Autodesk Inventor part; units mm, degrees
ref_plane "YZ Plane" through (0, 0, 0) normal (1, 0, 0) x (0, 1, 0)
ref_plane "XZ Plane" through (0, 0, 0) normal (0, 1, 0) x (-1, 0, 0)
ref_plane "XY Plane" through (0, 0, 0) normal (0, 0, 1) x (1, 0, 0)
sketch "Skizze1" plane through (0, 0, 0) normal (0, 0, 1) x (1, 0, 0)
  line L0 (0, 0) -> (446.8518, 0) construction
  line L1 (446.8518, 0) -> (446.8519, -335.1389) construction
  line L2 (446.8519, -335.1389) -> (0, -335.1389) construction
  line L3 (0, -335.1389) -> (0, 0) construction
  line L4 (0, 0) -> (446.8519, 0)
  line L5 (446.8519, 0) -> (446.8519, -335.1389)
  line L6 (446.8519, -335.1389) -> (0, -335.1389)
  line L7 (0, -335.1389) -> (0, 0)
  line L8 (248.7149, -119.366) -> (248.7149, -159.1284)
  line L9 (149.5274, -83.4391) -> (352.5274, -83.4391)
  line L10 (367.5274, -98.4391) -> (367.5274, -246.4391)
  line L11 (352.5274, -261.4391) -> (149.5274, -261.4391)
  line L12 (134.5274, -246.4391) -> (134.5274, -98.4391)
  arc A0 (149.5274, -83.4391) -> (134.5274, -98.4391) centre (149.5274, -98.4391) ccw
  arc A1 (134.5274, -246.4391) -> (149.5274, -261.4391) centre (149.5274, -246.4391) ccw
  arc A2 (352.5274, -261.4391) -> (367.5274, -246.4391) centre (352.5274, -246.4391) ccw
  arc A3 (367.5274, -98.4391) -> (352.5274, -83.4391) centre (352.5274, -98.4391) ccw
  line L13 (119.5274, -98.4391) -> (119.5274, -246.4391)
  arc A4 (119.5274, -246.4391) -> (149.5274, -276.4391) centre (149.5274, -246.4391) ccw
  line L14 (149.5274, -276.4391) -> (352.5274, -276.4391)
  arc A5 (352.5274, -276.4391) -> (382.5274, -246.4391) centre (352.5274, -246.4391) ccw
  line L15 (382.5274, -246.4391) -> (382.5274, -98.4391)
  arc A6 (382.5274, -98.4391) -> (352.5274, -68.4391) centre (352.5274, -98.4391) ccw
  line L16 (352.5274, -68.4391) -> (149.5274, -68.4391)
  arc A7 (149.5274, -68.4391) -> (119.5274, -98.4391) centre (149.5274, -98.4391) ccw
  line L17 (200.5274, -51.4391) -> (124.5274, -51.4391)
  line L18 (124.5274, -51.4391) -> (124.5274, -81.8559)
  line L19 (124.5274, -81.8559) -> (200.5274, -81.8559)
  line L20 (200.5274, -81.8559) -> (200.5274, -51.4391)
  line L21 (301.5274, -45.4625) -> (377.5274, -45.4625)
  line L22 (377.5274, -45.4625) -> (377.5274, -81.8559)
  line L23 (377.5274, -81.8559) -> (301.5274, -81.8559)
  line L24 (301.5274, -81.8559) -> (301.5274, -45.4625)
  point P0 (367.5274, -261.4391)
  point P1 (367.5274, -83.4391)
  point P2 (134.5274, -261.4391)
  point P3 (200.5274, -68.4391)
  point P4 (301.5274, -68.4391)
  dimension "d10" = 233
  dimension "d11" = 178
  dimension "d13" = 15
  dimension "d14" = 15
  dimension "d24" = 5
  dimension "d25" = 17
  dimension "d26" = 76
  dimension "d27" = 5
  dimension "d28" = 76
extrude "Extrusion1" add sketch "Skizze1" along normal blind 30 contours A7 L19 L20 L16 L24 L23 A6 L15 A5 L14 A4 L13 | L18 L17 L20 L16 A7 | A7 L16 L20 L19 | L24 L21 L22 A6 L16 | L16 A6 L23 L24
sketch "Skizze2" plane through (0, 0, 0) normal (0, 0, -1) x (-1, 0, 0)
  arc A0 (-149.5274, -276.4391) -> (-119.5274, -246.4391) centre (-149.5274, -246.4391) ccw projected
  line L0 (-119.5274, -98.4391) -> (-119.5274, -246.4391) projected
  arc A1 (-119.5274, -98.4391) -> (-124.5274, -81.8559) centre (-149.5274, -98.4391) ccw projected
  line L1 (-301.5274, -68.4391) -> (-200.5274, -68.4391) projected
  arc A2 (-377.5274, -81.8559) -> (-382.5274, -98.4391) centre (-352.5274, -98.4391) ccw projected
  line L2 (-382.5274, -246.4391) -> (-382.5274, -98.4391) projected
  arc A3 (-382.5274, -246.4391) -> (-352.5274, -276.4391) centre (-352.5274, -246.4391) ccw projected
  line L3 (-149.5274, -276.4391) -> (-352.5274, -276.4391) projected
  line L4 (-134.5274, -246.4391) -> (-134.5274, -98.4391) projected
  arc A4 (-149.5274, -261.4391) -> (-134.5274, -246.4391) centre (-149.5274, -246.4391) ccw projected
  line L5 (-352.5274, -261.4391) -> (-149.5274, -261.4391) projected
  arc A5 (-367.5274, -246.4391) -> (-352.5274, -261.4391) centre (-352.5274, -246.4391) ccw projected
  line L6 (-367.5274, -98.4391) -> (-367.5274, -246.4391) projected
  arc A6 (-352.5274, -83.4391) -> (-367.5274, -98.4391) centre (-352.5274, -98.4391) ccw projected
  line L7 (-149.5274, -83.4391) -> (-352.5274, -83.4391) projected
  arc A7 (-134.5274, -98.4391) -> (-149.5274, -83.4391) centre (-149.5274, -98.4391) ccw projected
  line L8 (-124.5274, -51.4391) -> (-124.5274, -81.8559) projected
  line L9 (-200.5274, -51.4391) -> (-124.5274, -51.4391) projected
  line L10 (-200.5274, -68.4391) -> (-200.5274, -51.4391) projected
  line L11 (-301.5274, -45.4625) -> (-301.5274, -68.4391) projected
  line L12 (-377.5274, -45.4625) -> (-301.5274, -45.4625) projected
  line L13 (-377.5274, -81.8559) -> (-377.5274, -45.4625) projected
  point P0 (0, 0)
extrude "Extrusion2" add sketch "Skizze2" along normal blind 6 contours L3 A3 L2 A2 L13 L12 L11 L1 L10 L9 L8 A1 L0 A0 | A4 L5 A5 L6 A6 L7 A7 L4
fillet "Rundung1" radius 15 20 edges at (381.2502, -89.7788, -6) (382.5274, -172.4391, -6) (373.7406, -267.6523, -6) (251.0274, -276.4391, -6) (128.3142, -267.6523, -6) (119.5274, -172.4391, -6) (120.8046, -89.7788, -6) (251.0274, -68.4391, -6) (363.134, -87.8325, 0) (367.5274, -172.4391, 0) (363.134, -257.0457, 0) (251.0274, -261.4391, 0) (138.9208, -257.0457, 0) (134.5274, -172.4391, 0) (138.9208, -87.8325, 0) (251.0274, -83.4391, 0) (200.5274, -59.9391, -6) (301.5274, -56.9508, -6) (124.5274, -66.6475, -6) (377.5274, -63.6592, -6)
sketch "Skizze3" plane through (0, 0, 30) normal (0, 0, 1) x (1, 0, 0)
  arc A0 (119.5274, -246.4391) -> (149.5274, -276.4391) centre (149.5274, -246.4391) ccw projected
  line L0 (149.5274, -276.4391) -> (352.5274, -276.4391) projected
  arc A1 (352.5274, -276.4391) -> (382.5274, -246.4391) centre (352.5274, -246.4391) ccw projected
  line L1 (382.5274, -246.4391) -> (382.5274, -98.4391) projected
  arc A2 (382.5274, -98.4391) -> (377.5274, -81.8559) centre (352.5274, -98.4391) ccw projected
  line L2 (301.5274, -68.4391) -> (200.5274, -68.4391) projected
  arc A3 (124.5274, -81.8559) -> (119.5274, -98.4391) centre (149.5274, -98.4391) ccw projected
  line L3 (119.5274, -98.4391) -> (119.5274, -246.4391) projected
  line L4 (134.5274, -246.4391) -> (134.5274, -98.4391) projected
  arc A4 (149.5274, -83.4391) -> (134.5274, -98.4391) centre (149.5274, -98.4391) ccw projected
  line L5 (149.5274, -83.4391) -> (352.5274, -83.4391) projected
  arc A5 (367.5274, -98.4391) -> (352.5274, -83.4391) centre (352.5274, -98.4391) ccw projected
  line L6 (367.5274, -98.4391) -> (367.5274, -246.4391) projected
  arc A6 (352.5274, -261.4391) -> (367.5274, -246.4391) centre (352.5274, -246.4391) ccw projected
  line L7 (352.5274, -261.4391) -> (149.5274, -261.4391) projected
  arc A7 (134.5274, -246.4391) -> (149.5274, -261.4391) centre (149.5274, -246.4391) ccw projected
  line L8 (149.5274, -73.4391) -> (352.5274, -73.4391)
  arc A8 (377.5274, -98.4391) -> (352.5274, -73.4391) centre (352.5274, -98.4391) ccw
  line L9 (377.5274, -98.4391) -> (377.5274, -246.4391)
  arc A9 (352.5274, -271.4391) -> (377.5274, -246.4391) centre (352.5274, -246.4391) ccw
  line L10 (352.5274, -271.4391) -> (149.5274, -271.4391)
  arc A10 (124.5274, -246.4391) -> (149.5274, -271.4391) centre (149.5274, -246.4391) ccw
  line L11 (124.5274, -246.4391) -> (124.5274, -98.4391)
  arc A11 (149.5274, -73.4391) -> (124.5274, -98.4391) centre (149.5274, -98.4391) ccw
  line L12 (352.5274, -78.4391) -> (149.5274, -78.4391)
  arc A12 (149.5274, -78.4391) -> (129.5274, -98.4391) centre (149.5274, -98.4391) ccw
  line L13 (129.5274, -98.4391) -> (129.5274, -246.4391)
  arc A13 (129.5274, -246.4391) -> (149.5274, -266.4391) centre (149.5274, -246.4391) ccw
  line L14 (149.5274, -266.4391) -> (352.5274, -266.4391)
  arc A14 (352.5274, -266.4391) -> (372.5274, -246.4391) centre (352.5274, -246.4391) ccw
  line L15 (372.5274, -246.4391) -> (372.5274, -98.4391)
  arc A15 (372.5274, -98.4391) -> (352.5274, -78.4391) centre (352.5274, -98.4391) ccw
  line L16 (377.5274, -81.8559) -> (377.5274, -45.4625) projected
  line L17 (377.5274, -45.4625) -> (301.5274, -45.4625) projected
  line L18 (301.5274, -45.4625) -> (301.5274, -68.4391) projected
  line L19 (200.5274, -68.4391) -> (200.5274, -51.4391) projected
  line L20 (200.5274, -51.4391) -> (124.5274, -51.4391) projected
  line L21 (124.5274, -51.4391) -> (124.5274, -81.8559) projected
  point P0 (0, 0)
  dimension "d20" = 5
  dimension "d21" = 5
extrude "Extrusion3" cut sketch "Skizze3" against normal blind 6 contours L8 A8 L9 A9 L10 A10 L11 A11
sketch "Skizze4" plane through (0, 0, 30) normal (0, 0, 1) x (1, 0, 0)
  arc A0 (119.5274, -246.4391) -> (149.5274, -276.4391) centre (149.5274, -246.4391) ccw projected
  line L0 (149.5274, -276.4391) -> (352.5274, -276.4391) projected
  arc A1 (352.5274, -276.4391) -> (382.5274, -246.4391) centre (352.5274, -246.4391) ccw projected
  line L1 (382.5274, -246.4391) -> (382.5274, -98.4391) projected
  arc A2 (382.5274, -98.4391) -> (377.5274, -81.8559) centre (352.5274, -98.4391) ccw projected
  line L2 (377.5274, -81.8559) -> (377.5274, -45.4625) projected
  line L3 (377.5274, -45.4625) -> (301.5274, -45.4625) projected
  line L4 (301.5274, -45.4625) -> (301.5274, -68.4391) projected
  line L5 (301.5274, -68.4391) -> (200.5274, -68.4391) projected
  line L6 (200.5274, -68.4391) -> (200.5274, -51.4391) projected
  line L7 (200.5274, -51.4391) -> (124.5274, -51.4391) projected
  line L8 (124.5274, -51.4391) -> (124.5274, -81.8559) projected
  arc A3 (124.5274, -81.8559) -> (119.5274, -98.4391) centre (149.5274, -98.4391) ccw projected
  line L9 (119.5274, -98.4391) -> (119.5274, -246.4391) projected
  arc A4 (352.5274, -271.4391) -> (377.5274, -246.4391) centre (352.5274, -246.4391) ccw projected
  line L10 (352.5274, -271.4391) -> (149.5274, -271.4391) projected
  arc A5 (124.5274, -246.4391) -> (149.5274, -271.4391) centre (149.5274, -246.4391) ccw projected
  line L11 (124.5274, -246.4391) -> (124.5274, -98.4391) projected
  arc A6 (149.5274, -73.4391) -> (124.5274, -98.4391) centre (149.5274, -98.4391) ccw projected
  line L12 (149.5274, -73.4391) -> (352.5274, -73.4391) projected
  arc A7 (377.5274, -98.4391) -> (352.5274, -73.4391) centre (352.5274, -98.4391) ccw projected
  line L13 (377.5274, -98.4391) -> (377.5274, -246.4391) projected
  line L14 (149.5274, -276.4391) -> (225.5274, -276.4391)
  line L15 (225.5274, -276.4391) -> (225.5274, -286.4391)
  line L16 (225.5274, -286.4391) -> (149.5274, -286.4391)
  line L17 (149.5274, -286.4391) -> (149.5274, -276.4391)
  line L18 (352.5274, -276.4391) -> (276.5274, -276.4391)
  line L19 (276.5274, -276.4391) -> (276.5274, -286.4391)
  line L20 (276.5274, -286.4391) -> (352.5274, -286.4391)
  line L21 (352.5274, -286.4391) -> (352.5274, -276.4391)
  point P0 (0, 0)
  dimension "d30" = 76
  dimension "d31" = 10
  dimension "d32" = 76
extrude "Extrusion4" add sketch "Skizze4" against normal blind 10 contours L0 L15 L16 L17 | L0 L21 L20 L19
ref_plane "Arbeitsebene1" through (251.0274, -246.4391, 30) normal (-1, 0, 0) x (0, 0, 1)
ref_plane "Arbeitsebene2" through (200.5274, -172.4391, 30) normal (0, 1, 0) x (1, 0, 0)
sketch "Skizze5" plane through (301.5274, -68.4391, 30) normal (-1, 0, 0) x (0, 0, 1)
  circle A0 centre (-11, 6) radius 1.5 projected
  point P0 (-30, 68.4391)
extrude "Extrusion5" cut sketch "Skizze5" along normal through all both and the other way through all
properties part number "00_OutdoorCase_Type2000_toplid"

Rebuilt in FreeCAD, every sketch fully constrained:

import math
import FreeCAD as App
import Part
import Sketcher
from FreeCAD import Vector
Q = App.Units.Quantity


def edges_at(feature, points):
    """Names of the edges that pass closest to the given points."""
    edges = feature.Shape.Edges
    near = lambda p: min(range(len(edges)), key=lambda i: edges[i].distToShape(Part.Vertex(*p))[0])
    return sorted({f"Edge{near(p) + 1}" for p in points})

doc = App.newDocument("Part")
params = doc.addObject("Spreadsheet::Sheet", "Params")
for row, (alias, value) in enumerate([
    ("sketch1_radius", "15 mm"),
    ("sketch1_width", "76 mm"),
    ("sketch1_height", "17 mm"),
    ("sketch1_radius2", "30 mm"),
    ("pad1_length", "30 mm"),
    ("sketch2_radius", "30 mm"),
    ("sketch2_width", "203 mm"),
    ("sketch2_width2", "76 mm"),
    ("sketch2_width3", "101 mm"),
    ("sketch2_height", "148 mm"),
    ("pad2_length", "6 mm"),
    ("fillet_radius", "15 mm"),
    ("sketch3_radius", "25 mm"),
    ("sketch3_radius2", "20 mm"),
    ("sketch3_width", "203 mm"),
    ("sketch3_height", "148 mm"),
    ("pocket1_length", "6 mm"),
    ("sketch4_width", "76 mm"),
    ("sketch4_height", "10 mm"),
    ("pad3_length", "10 mm"),
    ("sketch5_diameter", "3 mm"),
], start=1):
    params.set(f"A{row}", alias)
    params.set(f"B{row}", "=" + value)
    params.setAlias(f"B{row}", alias)

body = doc.addObject("PartDesign::Body", "Body")

sketch1 = body.newObject("Sketcher::SketchObject", "Sketch")
sketch1.AttachmentSupport = (doc.getObject("XY_Plane"), [""])
sketch1.MapMode = "FlatFace"
sketch1.addGeometry([
    Part.ArcOfCircle(Part.Circle(Vector(150, -98, 0), Vector(0, 0, 1), 30), math.radians(146), math.radians(180)),
    Part.LineSegment(Vector(120, -98, 0), Vector(120, -246, 0)),
    Part.ArcOfCircle(Part.Circle(Vector(150, -246, 0), Vector(0, 0, 1), 30), math.radians(180), math.radians(270)),
    Part.LineSegment(Vector(150, -276, 0), Vector(353, -276, 0)),
    Part.ArcOfCircle(Part.Circle(Vector(353, -246, 0), Vector(0, 0, 1), 30), math.radians(-90), math.radians(0)),
    Part.LineSegment(Vector(383, -246, 0), Vector(383, -98, 0)),
    Part.ArcOfCircle(Part.Circle(Vector(353, -98, 0), Vector(0, 0, 1), 30), math.radians(0), math.radians(34)),
    Part.LineSegment(Vector(378, -82, 0), Vector(378, -45, 0)),
    Part.LineSegment(Vector(378, -45, 0), Vector(302, -45, 0)),
    Part.LineSegment(Vector(302, -45, 0), Vector(302, -68, 0)),
    Part.LineSegment(Vector(302, -68, 0), Vector(201, -68, 0)),
    Part.LineSegment(Vector(201, -68, 0), Vector(201, -51, 0)),
    Part.LineSegment(Vector(201, -51, 0), Vector(125, -51, 0)),
    Part.LineSegment(Vector(125, -51, 0), Vector(125, -82, 0)),
    Part.ArcOfCircle(Part.Circle(Vector(150, -98, 0), Vector(0, 0, 1), 15), math.radians(90), math.radians(180)),
    Part.LineSegment(Vector(150, -83, 0), Vector(353, -83, 0)),
    Part.ArcOfCircle(Part.Circle(Vector(353, -98, 0), Vector(0, 0, 1), 15), math.radians(0), math.radians(90)),
    Part.LineSegment(Vector(368, -98, 0), Vector(368, -246, 0)),
    Part.ArcOfCircle(Part.Circle(Vector(353, -246, 0), Vector(0, 0, 1), 15), math.radians(-90), math.radians(0)),
    Part.LineSegment(Vector(353, -261, 0), Vector(150, -261, 0)),
    Part.ArcOfCircle(Part.Circle(Vector(150, -246, 0), Vector(0, 0, 1), 15), math.radians(180), math.radians(270)),
    Part.LineSegment(Vector(135, -246, 0), Vector(135, -98, 0)),
], False)
sketch1.addConstraint([
    Sketcher.Constraint("Tangent", 0, 2, 1, 1),
    Sketcher.Constraint("Tangent", 1, 2, 2, 1),
    Sketcher.Constraint("Tangent", 2, 2, 3, 1),
    Sketcher.Constraint("Tangent", 3, 2, 4, 1),
    Sketcher.Constraint("Tangent", 4, 2, 5, 1),
    Sketcher.Constraint("Tangent", 5, 2, 6, 1),
    Sketcher.Constraint("Coincident", 6, 2, 7, 1),
    Sketcher.Constraint("Coincident", 7, 2, 8, 1),
    Sketcher.Constraint("Coincident", 8, 2, 9, 1),
    Sketcher.Constraint("Coincident", 9, 2, 10, 1),
    Sketcher.Constraint("Coincident", 10, 2, 11, 1),
    Sketcher.Constraint("Coincident", 11, 2, 12, 1),
    Sketcher.Constraint("Coincident", 12, 2, 13, 1),
    Sketcher.Constraint("Coincident", 13, 2, 0, 1),
    Sketcher.Constraint("Tangent", 14, 1, 15, 1),
    Sketcher.Constraint("Tangent", 15, 2, 16, 2),
    Sketcher.Constraint("Tangent", 16, 1, 17, 1),
    Sketcher.Constraint("Tangent", 17, 2, 18, 2),
    Sketcher.Constraint("Tangent", 18, 1, 19, 1),
    Sketcher.Constraint("Tangent", 19, 2, 20, 2),
    Sketcher.Constraint("Tangent", 20, 1, 21, 1),
    Sketcher.Constraint("Tangent", 21, 2, 14, 2),
    Sketcher.Constraint("Vertical", 1),
    Sketcher.Constraint("Horizontal", 3),
    Sketcher.Constraint("Vertical", 5),
    Sketcher.Constraint("Vertical", 7),
    Sketcher.Constraint("Horizontal", 8),
    Sketcher.Constraint("Vertical", 9),
    Sketcher.Constraint("Horizontal", 10),
    Sketcher.Constraint("Vertical", 11),
    Sketcher.Constraint("Horizontal", 12),
    Sketcher.Constraint("Vertical", 13),
    Sketcher.Constraint("Horizontal", 15),
    Sketcher.Constraint("Vertical", 17),
    Sketcher.Constraint("Horizontal", 19),
    Sketcher.Constraint("Vertical", 21),
    Sketcher.Constraint("Coincident", 14, 3, 0, 3),
    Sketcher.Constraint("Coincident", 16, 3, 6, 3),
    Sketcher.Constraint("Coincident", 18, 3, 4, 3),
    Sketcher.Constraint("Coincident", 20, 3, 2, 3),
    Sketcher.Constraint("Equal", 0, 2),
    Sketcher.Constraint("Equal", 2, 4),
    Sketcher.Constraint("Equal", 4, 6),
    Sketcher.Constraint("Horizontal", 6, 2, 13, 2),
    Sketcher.Constraint("Equal", 8, 12),
    Sketcher.Constraint("Radius", 14, Q("15 mm")),
    Sketcher.Constraint("DistanceX", 8, 2, 8, 1, Q("76 mm")),
    Sketcher.Constraint("DistanceY", 11, 1, 11, 2, Q("17 mm")),
    Sketcher.Constraint("Radius", 0, Q("30 mm")),
    Sketcher.Constraint("DistanceX", 0, 2, 6, 3, Q("233 mm")),
    Sketcher.Constraint("DistanceY", 2, 2, 0, 3, Q("178 mm")),
    Sketcher.Constraint("DistanceX", 6, 2, 5, 2, Q("5 mm")),
    Sketcher.Constraint("DistanceY", 6, 3, 9, 2, Q("30 mm")),
    Sketcher.Constraint("DistanceY", 7, 1, 7, 2, Q("36.3934 mm")),
    Sketcher.Constraint("DistanceY", 0, 3, -1, 1, Q("98.439 mm")),
    Sketcher.Constraint("DistanceX", -1, 1, 0, 3, Q("149.5274 mm")),
])
sketch1.setExpression("Constraints[45]", "Params.sketch1_radius")
sketch1.setExpression("Constraints[46]", "Params.sketch1_width")
sketch1.setExpression("Constraints[47]", "Params.sketch1_height")
sketch1.setExpression("Constraints[48]", "Params.sketch1_radius2")
pad1 = body.newObject("PartDesign::Pad", "Pad")
pad1.Profile = sketch1
pad1.setExpression("Length", "Params.pad1_length")

sketch2 = body.newObject("Sketcher::SketchObject", "Sketch001")
sketch2.AttachmentSupport = (doc.getObject("XY_Plane"), [""])
sketch2.MapMode = "FlatFace"
sketch2.addGeometry([
    Part.LineSegment(Vector(353, -276, 0), Vector(150, -276, 0)),
    Part.ArcOfCircle(Part.Circle(Vector(150, -246, 0), Vector(0, 0, 1), 30), math.radians(180), math.radians(270)),
    Part.LineSegment(Vector(120, -246, 0), Vector(120, -98, 0)),
    Part.ArcOfCircle(Part.Circle(Vector(150, -98, 0), Vector(0, 0, 1), 30), math.radians(146), math.radians(180)),
    Part.LineSegment(Vector(125, -82, 0), Vector(125, -51, 0)),
    Part.LineSegment(Vector(125, -51, 0), Vector(201, -51, 0)),
    Part.LineSegment(Vector(201, -51, 0), Vector(201, -68, 0)),
    Part.LineSegment(Vector(201, -68, 0), Vector(302, -68, 0)),
    Part.LineSegment(Vector(302, -68, 0), Vector(302, -45, 0)),
    Part.LineSegment(Vector(302, -45, 0), Vector(378, -45, 0)),
    Part.LineSegment(Vector(378, -45, 0), Vector(378, -82, 0)),
    Part.ArcOfCircle(Part.Circle(Vector(353, -98, 0), Vector(0, 0, 1), 30), math.radians(0), math.radians(34)),
    Part.LineSegment(Vector(383, -98, 0), Vector(383, -246, 0)),
    Part.ArcOfCircle(Part.Circle(Vector(353, -246, 0), Vector(0, 0, 1), 30), math.radians(-90), math.radians(0)),
], False)
sketch2.addConstraint([
    Sketcher.Constraint("Tangent", 0, 2, 1, 2),
    Sketcher.Constraint("Tangent", 1, 1, 2, 1),
    Sketcher.Constraint("Tangent", 2, 2, 3, 2),
    Sketcher.Constraint("Coincident", 3, 1, 4, 1),
    Sketcher.Constraint("Coincident", 4, 2, 5, 1),
    Sketcher.Constraint("Coincident", 5, 2, 6, 1),
    Sketcher.Constraint("Coincident", 6, 2, 7, 1),
    Sketcher.Constraint("Coincident", 7, 2, 8, 1),
    Sketcher.Constraint("Coincident", 8, 2, 9, 1),
    Sketcher.Constraint("Coincident", 9, 2, 10, 1),
    Sketcher.Constraint("Coincident", 10, 2, 11, 2),
    Sketcher.Constraint("Tangent", 11, 1, 12, 1),
    Sketcher.Constraint("Tangent", 12, 2, 13, 2),
    Sketcher.Constraint("Tangent", 13, 1, 0, 1),
    Sketcher.Constraint("Horizontal", 0),
    Sketcher.Constraint("Vertical", 2),
    Sketcher.Constraint("Vertical", 4),
    Sketcher.Constraint("Horizontal", 5),
    Sketcher.Constraint("Vertical", 6),
    Sketcher.Constraint("Horizontal", 7),
    Sketcher.Constraint("Vertical", 8),
    Sketcher.Constraint("Horizontal", 9),
    Sketcher.Constraint("Vertical", 10),
    Sketcher.Constraint("Vertical", 12),
    Sketcher.Constraint("Equal", 1, 3),
    Sketcher.Constraint("Equal", 3, 11),
    Sketcher.Constraint("Equal", 11, 13),
    Sketcher.Constraint("Horizontal", 3, 3, 11, 3),
    Sketcher.Constraint("Horizontal", 3, 1, 10, 2),
    Sketcher.Constraint("Equal", 5, 9),
    Sketcher.Constraint("Radius", 1, Q("30 mm")),
    Sketcher.Constraint("DistanceX", 0, 2, 0, 1, Q("203 mm")),
    Sketcher.Constraint("DistanceX", 5, 1, 5, 2, Q("76 mm")),
    Sketcher.Constraint("DistanceX", 7, 1, 7, 2, Q("101 mm")),
    Sketcher.Constraint("DistanceY", 2, 1, 2, 2, Q("148 mm")),
    Sketcher.Constraint("DistanceY", 6, 2, 6, 1, Q("17 mm")),
    Sketcher.Constraint("DistanceY", 2, 2, 4, 2, Q("47 mm")),
    Sketcher.Constraint("DistanceY", 8, 1, 8, 2, Q("22.9766 mm")),
    Sketcher.Constraint("DistanceY", 1, 3, -1, 1, Q("246.439 mm")),
    Sketcher.Constraint("DistanceX", -1, 1, 1, 3, Q("149.5274 mm")),
])
sketch2.setExpression("Constraints[30]", "Params.sketch2_radius")
sketch2.setExpression("Constraints[31]", "Params.sketch2_width")
sketch2.setExpression("Constraints[32]", "Params.sketch2_width2")
sketch2.setExpression("Constraints[33]", "Params.sketch2_width3")
sketch2.setExpression("Constraints[34]", "Params.sketch2_height")
pad2 = body.newObject("PartDesign::Pad", "Pad001")
pad2.Profile = sketch2
pad2.setExpression("Length", "Params.pad2_length")
pad2.Reversed = True
doc.recompute()

fillet = body.newObject("PartDesign::Fillet", "Fillet")
fillet.Base = (pad2, edges_at(pad2, [
    (381.25, -89.779, -6),
    (382.527, -172.439, -6),
    (373.741, -267.652, -6),
    (251.027, -276.439, -6),
    (128.314, -267.652, -6),
    (119.527, -172.439, -6),
    (120.805, -89.779, -6),
    (251.027, -68.439, -6),
    (363.134, -87.832, 0),
    (367.527, -172.439, 0),
    (363.134, -257.046, 0),
    (251.027, -261.439, 0),
    (138.921, -257.046, 0),
    (134.527, -172.439, 0),
    (138.921, -87.832, 0),
    (251.027, -83.439, 0),
    (200.527, -59.939, -6),
    (301.527, -56.951, -6),
    (124.527, -66.647, -6),
    (377.527, -63.659, -6),
]))
fillet.setExpression("Radius", "Params.fillet_radius")

sketch3 = body.newObject("Sketcher::SketchObject", "Sketch002")
sketch3.AttachmentSupport = (doc.getObject("XY_Plane"), [""])
sketch3.MapMode = "FlatFace"
sketch3.AttachmentOffset = App.Placement(Vector(0, 0, 30), App.Rotation())
sketch3.addGeometry([
    Part.LineSegment(Vector(353, -73, 0), Vector(150, -73, 0)),
    Part.ArcOfCircle(Part.Circle(Vector(150, -98, 0), Vector(0, 0, 1), 25), math.radians(90), math.radians(180)),
    Part.LineSegment(Vector(125, -98, 0), Vector(125, -246, 0)),
    Part.ArcOfCircle(Part.Circle(Vector(150, -246, 0), Vector(0, 0, 1), 25), math.radians(180), math.radians(270)),
    Part.LineSegment(Vector(150, -271, 0), Vector(353, -271, 0)),
    Part.ArcOfCircle(Part.Circle(Vector(353, -246, 0), Vector(0, 0, 1), 25), math.radians(-90), math.radians(0)),
    Part.LineSegment(Vector(378, -246, 0), Vector(378, -98, 0)),
    Part.ArcOfCircle(Part.Circle(Vector(353, -98, 0), Vector(0, 0, 1), 25), math.radians(0), math.radians(90)),
    Part.LineSegment(Vector(150, -78, 0), Vector(353, -78, 0)),
    Part.ArcOfCircle(Part.Circle(Vector(353, -98, 0), Vector(0, 0, 1), 20), math.radians(0), math.radians(90)),
    Part.LineSegment(Vector(373, -98, 0), Vector(373, -246, 0)),
    Part.ArcOfCircle(Part.Circle(Vector(353, -246, 0), Vector(0, 0, 1), 20), math.radians(-90), math.radians(0)),
    Part.LineSegment(Vector(353, -266, 0), Vector(150, -266, 0)),
    Part.ArcOfCircle(Part.Circle(Vector(150, -246, 0), Vector(0, 0, 1), 20), math.radians(180), math.radians(270)),
    Part.LineSegment(Vector(130, -246, 0), Vector(130, -98, 0)),
    Part.ArcOfCircle(Part.Circle(Vector(150, -98, 0), Vector(0, 0, 1), 20), math.radians(90), math.radians(180)),
], False)
sketch3.addConstraint([
    Sketcher.Constraint("Tangent", 0, 2, 1, 1),
    Sketcher.Constraint("Tangent", 1, 2, 2, 1),
    Sketcher.Constraint("Tangent", 2, 2, 3, 1),
    Sketcher.Constraint("Tangent", 3, 2, 4, 1),
    Sketcher.Constraint("Tangent", 4, 2, 5, 1),
    Sketcher.Constraint("Tangent", 5, 2, 6, 1),
    Sketcher.Constraint("Tangent", 6, 2, 7, 1),
    Sketcher.Constraint("Tangent", 7, 2, 0, 1),
    Sketcher.Constraint("Tangent", 8, 2, 9, 2),
    Sketcher.Constraint("Tangent", 9, 1, 10, 1),
    Sketcher.Constraint("Tangent", 10, 2, 11, 2),
    Sketcher.Constraint("Tangent", 11, 1, 12, 1),
    Sketcher.Constraint("Tangent", 12, 2, 13, 2),
    Sketcher.Constraint("Tangent", 13, 1, 14, 1),
    Sketcher.Constraint("Tangent", 14, 2, 15, 2),
    Sketcher.Constraint("Tangent", 15, 1, 8, 1),
    Sketcher.Constraint("Horizontal", 0),
    Sketcher.Constraint("Vertical", 2),
    Sketcher.Constraint("Horizontal", 4),
    Sketcher.Constraint("Vertical", 6),
    Sketcher.Constraint("Horizontal", 8),
    Sketcher.Constraint("Vertical", 10),
    Sketcher.Constraint("Horizontal", 12),
    Sketcher.Constraint("Vertical", 14),
    Sketcher.Constraint("Coincident", 9, 3, 7, 3),
    Sketcher.Constraint("Coincident", 11, 3, 5, 3),
    Sketcher.Constraint("Coincident", 13, 3, 3, 3),
    Sketcher.Constraint("Equal", 1, 3),
    Sketcher.Constraint("Equal", 3, 5),
    Sketcher.Constraint("Equal", 5, 7),
    Sketcher.Constraint("Equal", 13, 15),
    Sketcher.Constraint("Radius", 1, Q("25 mm")),
    Sketcher.Constraint("Radius", 9, Q("20 mm")),
    Sketcher.Constraint("DistanceX", 0, 2, 0, 1, Q("203 mm")),
    Sketcher.Constraint("DistanceY", 2, 2, 2, 1, Q("148 mm")),
    Sketcher.Constraint("DistanceY", 1, 3, -1, 1, Q("98.439 mm")),
    Sketcher.Constraint("DistanceX", -1, 1, 1, 3, Q("149.5274 mm")),
])
sketch3.setExpression("Constraints[31]", "Params.sketch3_radius")
sketch3.setExpression("Constraints[32]", "Params.sketch3_radius2")
sketch3.setExpression("Constraints[33]", "Params.sketch3_width")
sketch3.setExpression("Constraints[34]", "Params.sketch3_height")
pocket1 = body.newObject("PartDesign::Pocket", "Pocket")
pocket1.Profile = sketch3
pocket1.setExpression("Length", "Params.pocket1_length")

sketch4 = body.newObject("Sketcher::SketchObject", "Sketch003")
sketch4.AttachmentSupport = (doc.getObject("XY_Plane"), [""])
sketch4.MapMode = "FlatFace"
sketch4.AttachmentOffset = App.Placement(Vector(0, 0, 30), App.Rotation())
sketch4.addGeometry([
    Part.LineSegment(Vector(226, -276, 0), Vector(150, -276, 0)),
    Part.LineSegment(Vector(150, -276, 0), Vector(150, -286, 0)),
    Part.LineSegment(Vector(150, -286, 0), Vector(226, -286, 0)),
    Part.LineSegment(Vector(226, -286, 0), Vector(226, -276, 0)),
    Part.LineSegment(Vector(353, -276, 0), Vector(277, -276, 0)),
    Part.LineSegment(Vector(277, -276, 0), Vector(277, -286, 0)),
    Part.LineSegment(Vector(277, -286, 0), Vector(353, -286, 0)),
    Part.LineSegment(Vector(353, -286, 0), Vector(353, -276, 0)),
], False)
sketch4.addConstraint([
    Sketcher.Constraint("Coincident", 0, 2, 1, 1),
    Sketcher.Constraint("Coincident", 1, 2, 2, 1),
    Sketcher.Constraint("Coincident", 2, 2, 3, 1),
    Sketcher.Constraint("Coincident", 3, 2, 0, 1),
    Sketcher.Constraint("Coincident", 4, 2, 5, 1),
    Sketcher.Constraint("Coincident", 5, 2, 6, 1),
    Sketcher.Constraint("Coincident", 6, 2, 7, 1),
    Sketcher.Constraint("Coincident", 7, 2, 4, 1),
    Sketcher.Constraint("Horizontal", 0),
    Sketcher.Constraint("Vertical", 1),
    Sketcher.Constraint("Horizontal", 2),
    Sketcher.Constraint("Vertical", 3),
    Sketcher.Constraint("Horizontal", 4),
    Sketcher.Constraint("Vertical", 5),
    Sketcher.Constraint("Horizontal", 6),
    Sketcher.Constraint("Vertical", 7),
    Sketcher.Constraint("Horizontal", 3, 2, 4, 2),
    Sketcher.Constraint("Horizontal", 2, 2, 5, 2),
    Sketcher.Constraint("Equal", 2, 4),
    Sketcher.Constraint("DistanceX", 0, 2, 0, 1, Q("76 mm")),
    Sketcher.Constraint("DistanceY", 1, 2, 1, 1, Q("10 mm")),
    Sketcher.Constraint("DistanceX", 3, 2, 4, 2, Q("51 mm")),
    Sketcher.Constraint("DistanceY", 0, 2, -1, 1, Q("276.439 mm")),
    Sketcher.Constraint("DistanceX", -1, 1, 0, 2, Q("149.5274 mm")),
])
sketch4.setExpression("Constraints[19]", "Params.sketch4_width")
sketch4.setExpression("Constraints[20]", "Params.sketch4_height")
pad3 = body.newObject("PartDesign::Pad", "Pad002")
pad3.Profile = sketch4
pad3.setExpression("Length", "Params.pad3_length")
pad3.Reversed = True

sketch5 = body.newObject("Sketcher::SketchObject", "Sketch004")
sketch5.AttachmentSupport = (doc.getObject("YZ_Plane"), [""])
sketch5.MapMode = "FlatFace"
sketch5.AttachmentOffset = App.Placement(Vector(0, 0, 301.5274), App.Rotation())
sketch5.addGeometry(Part.Circle(Vector(-62.4, 19, 0), Vector(0, 0, 1), 1.5), False)
sketch5.addConstraint([
    Sketcher.Constraint("Diameter", 0, Q("3 mm")),
    Sketcher.Constraint("DistanceY", -1, 1, 0, 3, Q("19 mm")),
    Sketcher.Constraint("DistanceX", 0, 3, -1, 1, Q("62.439 mm")),
])
sketch5.setExpression("Constraints[0]", "Params.sketch5_diameter")
pocket2 = body.newObject("PartDesign::Pocket", "Pocket001")
pocket2.Profile = sketch5
pocket2.Type = "ThroughAll"
pocket2.Midplane = True

doc.recompute()
